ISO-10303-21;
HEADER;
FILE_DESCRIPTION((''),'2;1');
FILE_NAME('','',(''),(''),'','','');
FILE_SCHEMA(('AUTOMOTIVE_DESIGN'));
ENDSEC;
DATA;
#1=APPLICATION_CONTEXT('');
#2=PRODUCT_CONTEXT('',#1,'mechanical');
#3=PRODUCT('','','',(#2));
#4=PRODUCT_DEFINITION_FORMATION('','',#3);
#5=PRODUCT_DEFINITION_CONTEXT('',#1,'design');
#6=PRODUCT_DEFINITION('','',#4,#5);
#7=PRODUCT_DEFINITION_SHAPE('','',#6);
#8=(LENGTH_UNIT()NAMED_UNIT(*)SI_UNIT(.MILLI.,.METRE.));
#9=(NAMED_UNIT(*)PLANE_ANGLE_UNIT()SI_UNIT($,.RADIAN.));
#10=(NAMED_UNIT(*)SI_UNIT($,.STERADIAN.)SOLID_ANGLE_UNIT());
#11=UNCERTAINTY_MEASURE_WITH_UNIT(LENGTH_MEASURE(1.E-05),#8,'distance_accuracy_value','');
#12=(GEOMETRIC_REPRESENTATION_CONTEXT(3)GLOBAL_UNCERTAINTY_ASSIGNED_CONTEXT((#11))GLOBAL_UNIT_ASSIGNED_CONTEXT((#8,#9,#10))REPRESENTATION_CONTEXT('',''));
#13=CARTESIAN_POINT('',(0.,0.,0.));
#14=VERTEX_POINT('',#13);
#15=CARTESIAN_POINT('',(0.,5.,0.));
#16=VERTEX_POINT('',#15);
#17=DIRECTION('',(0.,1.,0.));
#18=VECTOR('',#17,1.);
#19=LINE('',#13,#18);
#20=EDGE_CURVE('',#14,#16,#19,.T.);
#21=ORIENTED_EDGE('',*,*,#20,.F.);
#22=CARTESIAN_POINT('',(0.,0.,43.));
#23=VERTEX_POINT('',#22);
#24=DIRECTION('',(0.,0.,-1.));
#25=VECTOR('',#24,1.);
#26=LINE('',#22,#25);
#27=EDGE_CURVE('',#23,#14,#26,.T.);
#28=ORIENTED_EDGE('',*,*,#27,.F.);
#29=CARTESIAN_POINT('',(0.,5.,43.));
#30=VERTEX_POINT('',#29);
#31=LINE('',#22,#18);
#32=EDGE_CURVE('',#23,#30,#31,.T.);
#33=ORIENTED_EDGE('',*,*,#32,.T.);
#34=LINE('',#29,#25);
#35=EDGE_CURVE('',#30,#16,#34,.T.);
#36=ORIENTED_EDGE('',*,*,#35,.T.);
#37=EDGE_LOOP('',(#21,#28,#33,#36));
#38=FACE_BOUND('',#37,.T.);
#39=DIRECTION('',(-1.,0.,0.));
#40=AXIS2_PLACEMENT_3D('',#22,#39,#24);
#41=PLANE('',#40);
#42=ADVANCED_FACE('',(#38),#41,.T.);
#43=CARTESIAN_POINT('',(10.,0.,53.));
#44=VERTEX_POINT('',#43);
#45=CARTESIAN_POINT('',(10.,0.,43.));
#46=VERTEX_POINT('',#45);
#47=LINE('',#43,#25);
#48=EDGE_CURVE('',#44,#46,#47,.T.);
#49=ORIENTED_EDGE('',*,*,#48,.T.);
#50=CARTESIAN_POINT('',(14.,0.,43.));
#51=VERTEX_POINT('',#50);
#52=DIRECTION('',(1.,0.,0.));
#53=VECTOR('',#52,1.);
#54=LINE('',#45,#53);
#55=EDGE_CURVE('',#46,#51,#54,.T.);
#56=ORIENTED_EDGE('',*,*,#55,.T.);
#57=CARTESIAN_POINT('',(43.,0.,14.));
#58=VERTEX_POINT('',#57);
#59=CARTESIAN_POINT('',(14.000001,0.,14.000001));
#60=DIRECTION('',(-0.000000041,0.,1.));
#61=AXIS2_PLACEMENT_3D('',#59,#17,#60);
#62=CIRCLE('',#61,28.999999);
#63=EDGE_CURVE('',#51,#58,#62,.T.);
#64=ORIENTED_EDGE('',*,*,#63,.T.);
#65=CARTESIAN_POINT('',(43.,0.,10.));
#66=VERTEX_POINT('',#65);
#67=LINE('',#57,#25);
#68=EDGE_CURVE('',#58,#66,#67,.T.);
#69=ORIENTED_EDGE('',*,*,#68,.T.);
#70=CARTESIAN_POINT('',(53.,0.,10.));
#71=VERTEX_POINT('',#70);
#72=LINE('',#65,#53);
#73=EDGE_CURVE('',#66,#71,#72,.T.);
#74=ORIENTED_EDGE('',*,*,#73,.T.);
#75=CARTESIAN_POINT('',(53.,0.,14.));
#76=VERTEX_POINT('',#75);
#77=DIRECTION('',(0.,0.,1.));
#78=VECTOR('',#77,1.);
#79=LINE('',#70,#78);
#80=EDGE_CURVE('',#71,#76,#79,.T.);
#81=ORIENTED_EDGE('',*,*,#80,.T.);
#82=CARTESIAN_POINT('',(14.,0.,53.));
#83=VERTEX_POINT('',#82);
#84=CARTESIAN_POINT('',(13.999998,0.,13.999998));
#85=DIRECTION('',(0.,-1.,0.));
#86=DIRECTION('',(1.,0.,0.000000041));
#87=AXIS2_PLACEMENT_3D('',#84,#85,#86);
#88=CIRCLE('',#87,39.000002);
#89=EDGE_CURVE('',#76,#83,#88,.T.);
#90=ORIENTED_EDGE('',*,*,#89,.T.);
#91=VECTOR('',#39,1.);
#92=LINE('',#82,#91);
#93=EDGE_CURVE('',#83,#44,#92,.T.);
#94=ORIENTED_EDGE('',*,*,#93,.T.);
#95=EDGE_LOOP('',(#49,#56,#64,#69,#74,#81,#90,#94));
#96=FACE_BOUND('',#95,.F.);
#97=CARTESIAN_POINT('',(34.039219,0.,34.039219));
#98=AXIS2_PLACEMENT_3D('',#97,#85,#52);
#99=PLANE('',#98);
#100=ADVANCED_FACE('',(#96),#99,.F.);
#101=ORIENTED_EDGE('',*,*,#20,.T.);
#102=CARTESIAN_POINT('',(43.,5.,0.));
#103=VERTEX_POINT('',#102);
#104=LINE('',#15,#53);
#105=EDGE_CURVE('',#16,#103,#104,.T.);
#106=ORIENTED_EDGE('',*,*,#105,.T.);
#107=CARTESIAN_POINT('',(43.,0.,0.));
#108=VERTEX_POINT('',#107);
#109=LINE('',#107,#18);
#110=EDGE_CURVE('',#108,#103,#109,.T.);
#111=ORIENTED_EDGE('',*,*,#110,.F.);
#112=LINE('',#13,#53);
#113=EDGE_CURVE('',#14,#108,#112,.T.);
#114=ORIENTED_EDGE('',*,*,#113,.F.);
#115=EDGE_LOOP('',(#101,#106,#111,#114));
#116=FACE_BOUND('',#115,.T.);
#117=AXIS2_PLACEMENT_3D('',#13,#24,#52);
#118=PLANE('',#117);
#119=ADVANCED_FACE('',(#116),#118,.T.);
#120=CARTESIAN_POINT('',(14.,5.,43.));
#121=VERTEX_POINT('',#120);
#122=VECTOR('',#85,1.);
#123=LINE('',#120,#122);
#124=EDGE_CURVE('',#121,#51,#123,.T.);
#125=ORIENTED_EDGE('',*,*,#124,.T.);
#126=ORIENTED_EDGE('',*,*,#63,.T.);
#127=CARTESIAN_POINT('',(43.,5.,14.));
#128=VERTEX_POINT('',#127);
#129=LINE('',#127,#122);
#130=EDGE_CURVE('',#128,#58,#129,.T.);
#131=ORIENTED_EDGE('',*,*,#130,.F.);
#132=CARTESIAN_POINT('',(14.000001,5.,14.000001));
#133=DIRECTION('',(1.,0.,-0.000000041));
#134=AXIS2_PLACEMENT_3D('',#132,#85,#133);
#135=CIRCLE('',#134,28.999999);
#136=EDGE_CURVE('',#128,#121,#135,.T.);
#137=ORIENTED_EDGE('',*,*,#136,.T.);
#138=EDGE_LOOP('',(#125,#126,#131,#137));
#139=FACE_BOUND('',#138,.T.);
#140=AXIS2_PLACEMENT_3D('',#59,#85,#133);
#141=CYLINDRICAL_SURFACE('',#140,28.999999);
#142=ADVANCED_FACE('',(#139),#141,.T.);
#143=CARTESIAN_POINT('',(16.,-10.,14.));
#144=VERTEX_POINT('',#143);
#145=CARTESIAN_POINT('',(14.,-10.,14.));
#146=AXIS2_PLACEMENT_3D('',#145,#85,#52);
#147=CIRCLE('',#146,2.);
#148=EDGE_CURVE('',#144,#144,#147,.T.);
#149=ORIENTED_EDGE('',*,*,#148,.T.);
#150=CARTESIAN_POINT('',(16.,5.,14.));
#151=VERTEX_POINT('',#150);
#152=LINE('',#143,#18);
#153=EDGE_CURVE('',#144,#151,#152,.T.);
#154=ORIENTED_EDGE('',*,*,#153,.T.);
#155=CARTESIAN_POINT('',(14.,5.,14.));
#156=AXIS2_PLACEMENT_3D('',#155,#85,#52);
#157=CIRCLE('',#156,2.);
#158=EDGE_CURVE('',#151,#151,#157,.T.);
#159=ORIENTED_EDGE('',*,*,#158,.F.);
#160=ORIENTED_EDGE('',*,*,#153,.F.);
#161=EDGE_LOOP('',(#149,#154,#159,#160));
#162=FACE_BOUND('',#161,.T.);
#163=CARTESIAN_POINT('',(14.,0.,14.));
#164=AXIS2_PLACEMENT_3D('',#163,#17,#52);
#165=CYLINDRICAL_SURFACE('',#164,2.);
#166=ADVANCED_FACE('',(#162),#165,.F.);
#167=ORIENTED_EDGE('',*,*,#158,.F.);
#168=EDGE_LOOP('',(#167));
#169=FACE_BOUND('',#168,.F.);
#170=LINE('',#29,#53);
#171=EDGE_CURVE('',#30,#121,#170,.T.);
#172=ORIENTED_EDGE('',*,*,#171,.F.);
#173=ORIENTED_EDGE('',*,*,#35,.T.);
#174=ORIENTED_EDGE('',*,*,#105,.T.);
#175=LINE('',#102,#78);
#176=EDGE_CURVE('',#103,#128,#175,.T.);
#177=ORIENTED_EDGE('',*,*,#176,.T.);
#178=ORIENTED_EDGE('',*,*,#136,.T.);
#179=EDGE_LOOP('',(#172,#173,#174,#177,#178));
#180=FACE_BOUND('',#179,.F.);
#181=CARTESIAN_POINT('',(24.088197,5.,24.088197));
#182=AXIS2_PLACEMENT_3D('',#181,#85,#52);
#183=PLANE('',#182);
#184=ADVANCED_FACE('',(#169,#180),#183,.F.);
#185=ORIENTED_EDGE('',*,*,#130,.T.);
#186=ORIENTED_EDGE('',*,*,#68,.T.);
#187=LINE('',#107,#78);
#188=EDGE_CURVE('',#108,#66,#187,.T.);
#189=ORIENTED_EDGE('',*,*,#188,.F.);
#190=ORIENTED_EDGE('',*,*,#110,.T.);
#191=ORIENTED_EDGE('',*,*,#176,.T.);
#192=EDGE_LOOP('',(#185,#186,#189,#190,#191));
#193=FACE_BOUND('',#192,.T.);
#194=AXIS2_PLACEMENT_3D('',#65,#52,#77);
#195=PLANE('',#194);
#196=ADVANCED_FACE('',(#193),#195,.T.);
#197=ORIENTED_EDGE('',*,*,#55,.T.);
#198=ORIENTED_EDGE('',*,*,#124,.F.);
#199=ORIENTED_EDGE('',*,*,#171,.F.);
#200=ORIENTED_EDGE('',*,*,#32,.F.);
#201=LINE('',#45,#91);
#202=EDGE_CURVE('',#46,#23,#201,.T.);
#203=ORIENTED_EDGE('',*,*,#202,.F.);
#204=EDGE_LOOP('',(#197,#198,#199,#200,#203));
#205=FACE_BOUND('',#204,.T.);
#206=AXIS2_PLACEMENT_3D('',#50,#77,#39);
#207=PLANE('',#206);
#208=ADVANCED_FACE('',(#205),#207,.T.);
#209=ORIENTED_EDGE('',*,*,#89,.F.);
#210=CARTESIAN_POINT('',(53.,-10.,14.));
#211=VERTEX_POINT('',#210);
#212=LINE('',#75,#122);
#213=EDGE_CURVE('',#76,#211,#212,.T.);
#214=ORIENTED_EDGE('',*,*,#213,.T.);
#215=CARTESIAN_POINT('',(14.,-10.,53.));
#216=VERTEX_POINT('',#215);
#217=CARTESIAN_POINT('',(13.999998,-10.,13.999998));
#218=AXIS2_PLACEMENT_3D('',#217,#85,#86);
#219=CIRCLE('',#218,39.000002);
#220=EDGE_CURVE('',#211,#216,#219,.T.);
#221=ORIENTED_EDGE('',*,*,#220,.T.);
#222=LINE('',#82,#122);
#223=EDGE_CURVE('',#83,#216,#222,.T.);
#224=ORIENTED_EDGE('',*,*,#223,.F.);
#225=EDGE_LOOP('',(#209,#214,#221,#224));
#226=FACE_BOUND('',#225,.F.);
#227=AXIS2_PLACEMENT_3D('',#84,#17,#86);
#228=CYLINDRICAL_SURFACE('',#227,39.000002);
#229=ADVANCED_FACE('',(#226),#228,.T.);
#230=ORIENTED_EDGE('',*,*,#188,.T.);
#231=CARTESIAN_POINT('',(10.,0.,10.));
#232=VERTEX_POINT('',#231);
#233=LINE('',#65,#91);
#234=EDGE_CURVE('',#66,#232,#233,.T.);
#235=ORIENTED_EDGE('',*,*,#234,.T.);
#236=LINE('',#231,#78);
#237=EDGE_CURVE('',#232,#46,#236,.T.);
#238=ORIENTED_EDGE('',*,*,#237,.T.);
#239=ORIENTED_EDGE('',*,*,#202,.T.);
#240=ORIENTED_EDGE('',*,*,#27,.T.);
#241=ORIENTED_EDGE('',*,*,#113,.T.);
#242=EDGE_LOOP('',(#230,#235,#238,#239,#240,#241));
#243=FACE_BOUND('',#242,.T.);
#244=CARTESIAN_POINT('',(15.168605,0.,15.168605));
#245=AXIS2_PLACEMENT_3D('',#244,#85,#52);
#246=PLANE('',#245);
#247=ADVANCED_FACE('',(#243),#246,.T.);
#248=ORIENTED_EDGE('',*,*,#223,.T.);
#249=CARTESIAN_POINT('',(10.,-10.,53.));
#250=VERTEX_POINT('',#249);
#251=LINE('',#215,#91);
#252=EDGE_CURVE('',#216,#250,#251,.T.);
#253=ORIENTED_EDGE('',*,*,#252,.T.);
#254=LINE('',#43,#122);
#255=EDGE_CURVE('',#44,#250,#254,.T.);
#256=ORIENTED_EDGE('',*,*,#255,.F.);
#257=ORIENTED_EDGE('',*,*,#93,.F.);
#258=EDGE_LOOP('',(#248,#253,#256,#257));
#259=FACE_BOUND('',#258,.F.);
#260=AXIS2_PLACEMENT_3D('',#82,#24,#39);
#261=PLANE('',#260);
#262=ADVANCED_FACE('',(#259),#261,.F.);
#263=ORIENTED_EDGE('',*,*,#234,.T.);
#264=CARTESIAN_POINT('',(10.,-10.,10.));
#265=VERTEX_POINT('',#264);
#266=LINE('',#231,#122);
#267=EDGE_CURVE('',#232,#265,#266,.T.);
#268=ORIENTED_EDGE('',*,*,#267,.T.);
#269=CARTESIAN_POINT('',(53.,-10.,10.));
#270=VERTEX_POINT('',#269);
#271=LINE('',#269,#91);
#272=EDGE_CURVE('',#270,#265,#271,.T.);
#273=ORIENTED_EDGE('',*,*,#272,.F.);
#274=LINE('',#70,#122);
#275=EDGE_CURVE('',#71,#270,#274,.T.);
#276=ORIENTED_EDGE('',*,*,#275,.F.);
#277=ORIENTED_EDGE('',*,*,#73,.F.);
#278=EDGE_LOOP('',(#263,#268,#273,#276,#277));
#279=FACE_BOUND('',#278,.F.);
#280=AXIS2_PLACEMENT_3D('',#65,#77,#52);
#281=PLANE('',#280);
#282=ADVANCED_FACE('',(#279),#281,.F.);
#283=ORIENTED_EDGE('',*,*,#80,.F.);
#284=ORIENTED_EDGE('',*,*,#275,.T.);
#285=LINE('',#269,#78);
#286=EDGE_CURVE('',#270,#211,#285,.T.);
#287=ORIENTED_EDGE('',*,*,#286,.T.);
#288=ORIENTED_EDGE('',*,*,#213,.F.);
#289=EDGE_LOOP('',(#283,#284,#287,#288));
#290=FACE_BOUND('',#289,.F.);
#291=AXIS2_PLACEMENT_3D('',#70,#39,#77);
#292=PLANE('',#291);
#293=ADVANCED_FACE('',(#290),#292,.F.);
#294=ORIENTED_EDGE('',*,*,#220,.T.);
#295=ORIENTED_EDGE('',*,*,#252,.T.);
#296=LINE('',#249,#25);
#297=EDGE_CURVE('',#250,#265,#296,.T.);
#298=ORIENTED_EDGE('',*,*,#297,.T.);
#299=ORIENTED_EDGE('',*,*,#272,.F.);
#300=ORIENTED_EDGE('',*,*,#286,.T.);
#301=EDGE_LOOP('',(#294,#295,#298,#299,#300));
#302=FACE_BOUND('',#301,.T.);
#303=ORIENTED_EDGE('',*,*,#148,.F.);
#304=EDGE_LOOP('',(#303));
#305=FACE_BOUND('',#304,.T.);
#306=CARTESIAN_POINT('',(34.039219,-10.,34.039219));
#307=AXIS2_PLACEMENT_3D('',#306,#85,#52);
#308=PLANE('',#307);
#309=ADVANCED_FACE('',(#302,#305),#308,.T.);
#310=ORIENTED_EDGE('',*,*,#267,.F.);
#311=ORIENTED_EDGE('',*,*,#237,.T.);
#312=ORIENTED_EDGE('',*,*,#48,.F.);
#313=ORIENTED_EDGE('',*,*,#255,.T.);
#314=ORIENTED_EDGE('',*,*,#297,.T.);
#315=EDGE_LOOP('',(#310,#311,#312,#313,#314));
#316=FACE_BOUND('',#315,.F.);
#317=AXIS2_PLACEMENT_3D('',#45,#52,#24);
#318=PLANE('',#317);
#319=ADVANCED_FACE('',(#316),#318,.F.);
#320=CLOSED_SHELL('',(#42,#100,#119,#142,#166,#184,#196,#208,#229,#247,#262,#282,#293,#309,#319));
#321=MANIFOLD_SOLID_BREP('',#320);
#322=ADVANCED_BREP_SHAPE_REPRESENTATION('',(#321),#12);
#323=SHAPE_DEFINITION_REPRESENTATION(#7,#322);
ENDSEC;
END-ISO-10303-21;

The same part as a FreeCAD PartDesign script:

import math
import FreeCAD as App
import Part
import Sketcher


def add_polygon(sketch, points):
    """Adds a closed chain of lines whose ends are joined by coincident constraints."""
    first, n = sketch.GeometryCount, len(points)
    for a, b in zip(points, points[1:] + points[:1]):
        sketch.addGeometry(Part.LineSegment(App.Vector(*a, 0), App.Vector(*b, 0)), False)
    for i in range(n):
        sketch.addConstraint(Sketcher.Constraint("Coincident", first + i, 2, first + (i + 1) % n, 1))

doc = App.newDocument("Part")
body = doc.addObject("PartDesign::Body", "Body")

# Sketch on XZ plane
sketch1 = body.newObject("Sketcher::SketchObject", "Sketch")
sketch1.AttachmentSupport = (doc.getObject("XZ_Plane"), [""])
sketch1.MapMode = "FlatFace"
add_polygon(sketch1, [(0, 43), (0, 0), (43, 0), (43, 10), (10, 10), (10, 43)])  # lines 0-5
sketch1.addConstraint(Sketcher.Constraint("Vertical", 0))
sketch1.addConstraint(Sketcher.Constraint("Horizontal", 1))
sketch1.addConstraint(Sketcher.Constraint("Vertical", 2))
sketch1.addConstraint(Sketcher.Constraint("Horizontal", 3))
sketch1.addConstraint(Sketcher.Constraint("Vertical", 4))
sketch1.addConstraint(Sketcher.Constraint("Horizontal", 5))
sketch1.addConstraint(Sketcher.Constraint("Coincident", 0, 2, -1, 1))
sketch1.addConstraint(Sketcher.Constraint("Equal", 1, 0))
sketch1.addConstraint(Sketcher.Constraint("Equal", 5, 2))
sketch1.addConstraint(Sketcher.Constraint("DistanceX", 1, 1, 1, 2, 43.0))
sketch1.addConstraint(Sketcher.Constraint("DistanceX", 3, 2, 3, 1, 33.0))
pad1 = body.newObject("PartDesign::Pad", "Pad")
pad1.Profile = sketch1
pad1.Length = 5
pad1.Reversed = True

# Sketch on XZ plane
sketch2 = body.newObject("Sketcher::SketchObject", "Sketch001")
sketch2.AttachmentSupport = (doc.getObject("XZ_Plane"), [""])
sketch2.MapMode = "FlatFace"
sketch2.addGeometry(Part.LineSegment(App.Vector(10, 10, 0), App.Vector(43, 10, 0)), False)
sketch2.addGeometry(Part.LineSegment(App.Vector(43, 10, 0), App.Vector(43, 14, 0)), False)
sketch2.addGeometry(Part.ArcOfCircle(Part.Circle(App.Vector(14, 14, 0), App.Vector(0, 0, 1), 29), math.radians(0), math.radians(90)), False)
sketch2.addGeometry(Part.LineSegment(App.Vector(14, 43, 0), App.Vector(10, 43, 0)), False)
sketch2.addGeometry(Part.LineSegment(App.Vector(10, 43, 0), App.Vector(10, 10, 0)), False)
sketch2.addGeometry(Part.Circle(App.Vector(14, 14, 0), App.Vector(0, 0, 1), 2), False)
sketch2.addConstraint(Sketcher.Constraint("Coincident", 0, 2, 1, 1))
sketch2.addConstraint(Sketcher.Constraint("Tangent", 1, 2, 2, 1))
sketch2.addConstraint(Sketcher.Constraint("Tangent", 2, 2, 3, 1))
sketch2.addConstraint(Sketcher.Constraint("Coincident", 3, 2, 4, 1))
sketch2.addConstraint(Sketcher.Constraint("Coincident", 4, 2, 0, 1))
sketch2.addConstraint(Sketcher.Constraint("Horizontal", 0))
sketch2.addConstraint(Sketcher.Constraint("Vertical", 1))
sketch2.addConstraint(Sketcher.Constraint("Horizontal", 3))
sketch2.addConstraint(Sketcher.Constraint("Vertical", 4))
sketch2.addConstraint(Sketcher.Constraint("Coincident", 5, 3, 2, 3))
sketch2.addConstraint(Sketcher.Constraint("Equal", 3, 1))
sketch2.addConstraint(Sketcher.Constraint("Diameter", 5, 4.0))
sketch2.addConstraint(Sketcher.Constraint("Radius", 2, 28.999999))
sketch2.addConstraint(Sketcher.Constraint("DistanceX", 0, 1, 0, 2, 33.0))
sketch2.addConstraint(Sketcher.Constraint("DistanceX", -1, 1, 2, 3, 14.000001))
sketch2.addConstraint(Sketcher.Constraint("DistanceY", -1, 1, 2, 3, 14.000001))
pad2 = body.newObject("PartDesign::Pad", "Pad001")
pad2.Profile = sketch2
pad2.Type = "TwoLengths"
pad2.Length = 10
pad2.Length2 = 5

# Sketch on XZ plane
sketch3 = body.newObject("Sketcher::SketchObject", "Sketch002")
sketch3.AttachmentSupport = (doc.getObject("XZ_Plane"), [""])
sketch3.MapMode = "FlatFace"
sketch3.addGeometry(Part.LineSegment(App.Vector(43, 14, 0), App.Vector(43, 10, 0)), False)
sketch3.addGeometry(Part.LineSegment(App.Vector(43, 10, 0), App.Vector(53, 10, 0)), False)
sketch3.addGeometry(Part.LineSegment(App.Vector(53, 10, 0), App.Vector(53, 14, 0)), False)
sketch3.addGeometry(Part.ArcOfCircle(Part.Circle(App.Vector(14, 14, 0), App.Vector(0, 0, 1), 39), math.radians(0), math.radians(90)), False)
sketch3.addGeometry(Part.LineSegment(App.Vector(14, 53, 0), App.Vector(10, 53, 0)), False)
sketch3.addGeometry(Part.LineSegment(App.Vector(10, 53, 0), App.Vector(10, 43, 0)), False)
sketch3.addGeometry(Part.LineSegment(App.Vector(10, 43, 0), App.Vector(14, 43, 0)), False)
sketch3.addGeometry(Part.ArcOfCircle(Part.Circle(App.Vector(14, 14, 0), App.Vector(0, 0, 1), 29), math.radians(0), math.radians(90)), False)
sketch3.addConstraint(Sketcher.Constraint("Coincident", 0, 2, 1, 1))
sketch3.addConstraint(Sketcher.Constraint("Coincident", 1, 2, 2, 1))
sketch3.addConstraint(Sketcher.Constraint("Tangent", 2, 2, 3, 1))
sketch3.addConstraint(Sketcher.Constraint("Tangent", 3, 2, 4, 1))
sketch3.addConstraint(Sketcher.Constraint("Coincident", 4, 2, 5, 1))
sketch3.addConstraint(Sketcher.Constraint("Coincident", 5, 2, 6, 1))
sketch3.addConstraint(Sketcher.Constraint("Tangent", 6, 2, 7, 2))
sketch3.addConstraint(Sketcher.Constraint("Tangent", 7, 1, 0, 1))
sketch3.addConstraint(Sketcher.Constraint("Vertical", 0))
sketch3.addConstraint(Sketcher.Constraint("Horizontal", 1))
sketch3.addConstraint(Sketcher.Constraint("Vertical", 2))
sketch3.addConstraint(Sketcher.Constraint("Horizontal", 4))
sketch3.addConstraint(Sketcher.Constraint("Vertical", 5))
sketch3.addConstraint(Sketcher.Constraint("Horizontal", 6))
sketch3.addConstraint(Sketcher.Constraint("Coincident", 7, 3, 3, 3))
sketch3.addConstraint(Sketcher.Constraint("Equal", 6, 0))
sketch3.addConstraint(Sketcher.Constraint("Radius", 3, 39.000002))
sketch3.addConstraint(Sketcher.Constraint("Radius", 7, 28.999999))
sketch3.addConstraint(Sketcher.Constraint("DistanceX", 4, 2, 4, 1, 4.0))
sketch3.addConstraint(Sketcher.Constraint("DistanceX", -1, 1, 3, 3, 13.999998))
sketch3.addConstraint(Sketcher.Constraint("DistanceY", -1, 1, 3, 3, 13.999998))
pad3 = body.newObject("PartDesign::Pad", "Pad002")
pad3.Profile = sketch3
pad3.Length = 10

doc.recompute()
